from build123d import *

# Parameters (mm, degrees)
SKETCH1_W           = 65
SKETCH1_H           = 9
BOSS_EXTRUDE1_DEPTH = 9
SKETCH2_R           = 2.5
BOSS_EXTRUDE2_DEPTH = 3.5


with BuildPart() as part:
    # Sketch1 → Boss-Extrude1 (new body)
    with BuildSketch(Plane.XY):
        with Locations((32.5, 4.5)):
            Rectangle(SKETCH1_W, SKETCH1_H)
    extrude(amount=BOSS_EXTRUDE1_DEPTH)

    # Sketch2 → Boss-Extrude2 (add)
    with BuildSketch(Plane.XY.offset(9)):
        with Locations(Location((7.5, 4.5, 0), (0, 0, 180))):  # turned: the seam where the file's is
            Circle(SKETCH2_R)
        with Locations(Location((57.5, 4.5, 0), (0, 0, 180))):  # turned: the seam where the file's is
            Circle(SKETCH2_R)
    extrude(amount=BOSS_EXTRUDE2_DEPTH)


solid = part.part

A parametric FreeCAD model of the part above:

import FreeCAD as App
import Part
import Sketcher
from FreeCAD import Vector

doc = App.newDocument("Part")
body = doc.addObject("PartDesign::Body", "Body")

# Sketch on XY plane
sketch1 = body.newObject("Sketcher::SketchObject", "Sketch")
sketch1.AttachmentSupport = (doc.getObject("XY_Plane"), [""])
sketch1.MapMode = "FlatFace"
sketch1.addGeometry(Part.LineSegment(Vector(0, 9, 0), Vector(0, 0, 0)), False)
sketch1.addGeometry(Part.LineSegment(Vector(0, 0, 0), Vector(65, 0, 0)), False)
sketch1.addGeometry(Part.LineSegment(Vector(65, 0, 0), Vector(65, 9, 0)), False)
sketch1.addGeometry(Part.LineSegment(Vector(65, 9, 0), Vector(0, 9, 0)), False)
sketch1.addConstraint(Sketcher.Constraint("Coincident", 0, 2, 1, 1))
sketch1.addConstraint(Sketcher.Constraint("Coincident", 1, 2, 2, 1))
sketch1.addConstraint(Sketcher.Constraint("Coincident", 2, 2, 3, 1))
sketch1.addConstraint(Sketcher.Constraint("Coincident", 3, 2, 0, 1))
sketch1.addConstraint(Sketcher.Constraint("Vertical", 0))
sketch1.addConstraint(Sketcher.Constraint("Horizontal", 1))
sketch1.addConstraint(Sketcher.Constraint("Vertical", 2))
sketch1.addConstraint(Sketcher.Constraint("Horizontal", 3))
sketch1.addConstraint(Sketcher.Constraint("Coincident", 0, 2, -1, 1))
sketch1.addConstraint(Sketcher.Constraint("DistanceX", 1, 1, 1, 2, 65.0))
sketch1.addConstraint(Sketcher.Constraint("DistanceY", 0, 2, 0, 1, 9.0))
pad1 = body.newObject("PartDesign::Pad", "Pad")
pad1.Profile = sketch1
pad1.Length = 9

# Sketch on XY plane
sketch2 = body.newObject("Sketcher::SketchObject", "Sketch001")
sketch2.AttachmentSupport = (doc.getObject("XY_Plane"), [""])
sketch2.MapMode = "FlatFace"
sketch2.AttachmentOffset = App.Placement(Vector(0, 0, 9), App.Rotation())
sketch2.addGeometry(Part.Circle(Vector(7.5, 4.5, 0), Vector(0, 0, 1), 2.5), False)
sketch2.addGeometry(Part.Circle(Vector(57.5, 4.5, 0), Vector(0, 0, 1), 2.5), False)
sketch2.addConstraint(Sketcher.Constraint("Equal", 0, 1))
sketch2.addConstraint(Sketcher.Constraint("Horizontal", 0, 3, 1, 3))
sketch2.addConstraint(Sketcher.Constraint("Diameter", 0, 5.0))
sketch2.addConstraint(Sketcher.Constraint("DistanceX", 0, 3, 1, 3, 50.0))
sketch2.addConstraint(Sketcher.Constraint("DistanceX", -1, 1, 0, 3, 7.5))
sketch2.addConstraint(Sketcher.Constraint("DistanceY", -1, 1, 0, 3, 4.5))
pad2 = body.newObject("PartDesign::Pad", "Pad001")
pad2.Profile = sketch2
pad2.Length = 3.5

doc.recompute()
